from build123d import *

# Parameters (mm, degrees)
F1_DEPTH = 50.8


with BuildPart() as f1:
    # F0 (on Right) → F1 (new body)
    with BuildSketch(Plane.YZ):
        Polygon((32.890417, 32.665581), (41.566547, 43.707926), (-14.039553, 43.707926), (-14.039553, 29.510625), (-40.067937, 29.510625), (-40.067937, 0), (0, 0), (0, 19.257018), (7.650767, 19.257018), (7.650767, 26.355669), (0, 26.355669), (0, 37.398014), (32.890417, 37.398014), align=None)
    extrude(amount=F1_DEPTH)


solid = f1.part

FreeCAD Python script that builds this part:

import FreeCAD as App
import Part
import Sketcher
from FreeCAD import Vector
Q = App.Units.Quantity

doc = App.newDocument("Part")
body = doc.addObject("PartDesign::Body", "Body")

# Sketch on YZ plane
sketch1 = doc.addObject("Sketcher::SketchObject", "Sketch")
body.addObject(sketch1)
sketch1.AttachmentSupport = (doc.YZ_Plane, [""])
sketch1.MapMode = "FlatFace"
sketch1.addGeometry(Part.LineSegment(Vector(32.890417, 32.665581, 0), Vector(41.566547, 43.707926, 0)), False)
sketch1.addGeometry(Part.LineSegment(Vector(41.566547, 43.707926, 0), Vector(-14.039553, 43.707926, 0)), False)
sketch1.addGeometry(Part.LineSegment(Vector(-14.039553, 43.707926, 0), Vector(-14.039553, 29.510625, 0)), False)
sketch1.addGeometry(Part.LineSegment(Vector(-14.039553, 29.510625, 0), Vector(-40.067937, 29.510625, 0)), False)
sketch1.addGeometry(Part.LineSegment(Vector(-40.067937, 29.510625, 0), Vector(-40.067937, 0, 0)), False)
sketch1.addGeometry(Part.LineSegment(Vector(-40.067937, 0, 0), Vector(0, 0, 0)), False)
sketch1.addGeometry(Part.LineSegment(Vector(0, 0, 0), Vector(0, 19.257018, 0)), False)
sketch1.addGeometry(Part.LineSegment(Vector(0, 19.257018, 0), Vector(7.650767, 19.257018, 0)), False)
sketch1.addGeometry(Part.LineSegment(Vector(7.650767, 19.257018, 0), Vector(7.650767, 26.355669, 0)), False)
sketch1.addGeometry(Part.LineSegment(Vector(7.650767, 26.355669, 0), Vector(0, 26.355669, 0)), False)
sketch1.addGeometry(Part.LineSegment(Vector(0, 26.355669, 0), Vector(0, 37.398014, 0)), False)
sketch1.addGeometry(Part.LineSegment(Vector(0, 37.398014, 0), Vector(32.890417, 37.398014, 0)), False)
sketch1.addGeometry(Part.LineSegment(Vector(32.890417, 37.398014, 0), Vector(32.890417, 32.665581, 0)), False)
sketch1.addConstraint(Sketcher.Constraint("Coincident", 0, 2, 1, 1))
sketch1.addConstraint(Sketcher.Constraint("Coincident", 1, 2, 2, 1))
sketch1.addConstraint(Sketcher.Constraint("Coincident", 2, 2, 3, 1))
sketch1.addConstraint(Sketcher.Constraint("Coincident", 3, 2, 4, 1))
sketch1.addConstraint(Sketcher.Constraint("Coincident", 4, 2, 5, 1))
sketch1.addConstraint(Sketcher.Constraint("Coincident", 5, 2, 6, 1))
sketch1.addConstraint(Sketcher.Constraint("Coincident", 6, 2, 7, 1))
sketch1.addConstraint(Sketcher.Constraint("Coincident", 7, 2, 8, 1))
sketch1.addConstraint(Sketcher.Constraint("Coincident", 8, 2, 9, 1))
sketch1.addConstraint(Sketcher.Constraint("Coincident", 9, 2, 10, 1))
sketch1.addConstraint(Sketcher.Constraint("Coincident", 10, 2, 11, 1))
sketch1.addConstraint(Sketcher.Constraint("Coincident", 11, 2, 12, 1))
sketch1.addConstraint(Sketcher.Constraint("Coincident", 12, 2, 0, 1))
sketch1.addConstraint(Sketcher.Constraint("Horizontal", 1))
sketch1.addConstraint(Sketcher.Constraint("Vertical", 2))
sketch1.addConstraint(Sketcher.Constraint("Horizontal", 3))
sketch1.addConstraint(Sketcher.Constraint("Vertical", 4))
sketch1.addConstraint(Sketcher.Constraint("Horizontal", 5))
sketch1.addConstraint(Sketcher.Constraint("Vertical", 6))
sketch1.addConstraint(Sketcher.Constraint("Horizontal", 7))
sketch1.addConstraint(Sketcher.Constraint("Vertical", 8))
sketch1.addConstraint(Sketcher.Constraint("Horizontal", 9))
sketch1.addConstraint(Sketcher.Constraint("Vertical", 10))
sketch1.addConstraint(Sketcher.Constraint("Horizontal", 11))
sketch1.addConstraint(Sketcher.Constraint("Vertical", 12))
sketch1.addConstraint(Sketcher.Constraint("Coincident", 5, 2, -1, 1))
sketch1.addConstraint(Sketcher.Constraint("PointOnObject", 9, 2, -2))
sketch1.addConstraint(Sketcher.Constraint("DistanceX", 1, 2, 1, 1, 55.6061))
sketch1.addConstraint(Sketcher.Constraint("DistanceY", 2, 2, 2, 1, 14.197301))
sketch1.addConstraint(Sketcher.Constraint("Distance", 0, 14.043098))
sketch1.addConstraint(Sketcher.Constraint("DistanceY", 8, 1, 8, 2, 7.098651))
sketch1.addConstraint(Sketcher.Constraint("DistanceX", 3, 2, 3, 1, 26.028384))
sketch1.addConstraint(Sketcher.Constraint("DistanceX", 5, 1, 5, 2, 40.067937))
sketch1.addConstraint(Sketcher.Constraint("DistanceX", 7, 1, 7, 2, 7.650767))
sketch1.addConstraint(Sketcher.Constraint("DistanceX", 11, 1, 11, 2, 32.890417))
sketch1.addConstraint(Sketcher.Constraint("DistanceY", 4, 2, 4, 1, 29.510625))
sketch1.addConstraint(Sketcher.Constraint("DistanceY", 6, 1, 6, 2, 19.257018))
sketch1.addConstraint(Sketcher.Constraint("DistanceY", 10, 1, 10, 2, 11.042345))
pad1 = doc.addObject("PartDesign::Pad", "Pad")
body.addObject(pad1)
pad1.Profile = sketch1
pad1.Length = Q("2 in")

doc.recompute()
